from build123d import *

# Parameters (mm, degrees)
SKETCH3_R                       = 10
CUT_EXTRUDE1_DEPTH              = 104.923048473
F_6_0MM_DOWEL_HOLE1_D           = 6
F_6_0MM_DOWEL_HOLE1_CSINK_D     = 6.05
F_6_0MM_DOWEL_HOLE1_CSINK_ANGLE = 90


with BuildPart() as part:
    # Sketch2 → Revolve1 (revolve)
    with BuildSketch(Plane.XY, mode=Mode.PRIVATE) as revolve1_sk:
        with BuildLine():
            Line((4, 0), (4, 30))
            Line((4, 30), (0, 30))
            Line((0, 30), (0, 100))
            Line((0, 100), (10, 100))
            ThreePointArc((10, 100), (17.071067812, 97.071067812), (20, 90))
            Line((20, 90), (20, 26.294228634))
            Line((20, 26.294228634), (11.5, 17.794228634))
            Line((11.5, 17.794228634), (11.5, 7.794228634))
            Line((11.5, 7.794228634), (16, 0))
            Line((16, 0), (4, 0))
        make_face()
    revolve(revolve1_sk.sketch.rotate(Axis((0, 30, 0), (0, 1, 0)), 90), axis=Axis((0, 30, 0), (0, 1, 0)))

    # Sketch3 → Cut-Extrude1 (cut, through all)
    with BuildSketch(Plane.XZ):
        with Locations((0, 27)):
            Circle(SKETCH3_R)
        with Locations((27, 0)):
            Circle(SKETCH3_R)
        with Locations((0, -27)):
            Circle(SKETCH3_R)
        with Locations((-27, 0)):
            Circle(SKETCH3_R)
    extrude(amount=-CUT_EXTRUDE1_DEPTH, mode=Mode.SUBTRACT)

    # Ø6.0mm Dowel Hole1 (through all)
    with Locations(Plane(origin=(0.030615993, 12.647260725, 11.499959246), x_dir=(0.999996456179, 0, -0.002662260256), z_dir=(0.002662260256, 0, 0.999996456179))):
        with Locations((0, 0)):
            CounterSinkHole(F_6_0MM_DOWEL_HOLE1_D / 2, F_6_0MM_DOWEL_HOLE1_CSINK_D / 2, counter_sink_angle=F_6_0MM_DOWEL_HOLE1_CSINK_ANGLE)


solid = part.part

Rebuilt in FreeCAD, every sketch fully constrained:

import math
import FreeCAD as App
import Part
import Sketcher
Q = App.Units.Quantity

doc = App.newDocument("Part")
params = doc.addObject("Spreadsheet::Sheet", "Params")
for row, (alias, value) in enumerate([
    ("sketch1_radius", "10 mm"),
    ("sketch1_width", "12 mm"),
    ("sketch1_width2", "10 mm"),
    ("sketch1_width3", "4 mm"),
    ("sketch1_height", "30 mm"),
    ("revolution_angle", "360 deg"),
    ("sketch2_diameter", "20 mm"),
    ("sketch3_diameter", "6 mm"),
    ("hole_diameter", "6 mm"),
    ("hole_csink_diameter", "6.05 mm"),
], start=1):
    params.set(f"A{row}", alias)
    params.set(f"B{row}", "=" + value)
    params.setAlias(f"B{row}", alias)

body = doc.addObject("PartDesign::Body", "Body")

# Sketch on XY plane
sketch1 = body.newObject("Sketcher::SketchObject", "Sketch")
sketch1.AttachmentSupport = (doc.getObject("XY_Plane"), [""])
sketch1.MapMode = "FlatFace"
sketch1.addGeometry(Part.LineSegment(App.Vector(4, 30, 0), App.Vector(4, 0, 0)), False)
sketch1.addGeometry(Part.LineSegment(App.Vector(4, 0, 0), App.Vector(16, 0, 0)), False)
sketch1.addGeometry(Part.LineSegment(App.Vector(16, 0, 0), App.Vector(11.5, 7.8, 0)), False)
sketch1.addGeometry(Part.LineSegment(App.Vector(11.5, 7.8, 0), App.Vector(11.5, 17.8, 0)), False)
sketch1.addGeometry(Part.LineSegment(App.Vector(11.5, 17.8, 0), App.Vector(20, 26.3, 0)), False)
sketch1.addGeometry(Part.LineSegment(App.Vector(20, 26.3, 0), App.Vector(20, 90, 0)), False)
sketch1.addGeometry(Part.ArcOfCircle(Part.Circle(App.Vector(10, 90, 0), App.Vector(0, 0, 1), 10), math.radians(0), math.radians(90)), False)
sketch1.addGeometry(Part.LineSegment(App.Vector(10, 100, 0), App.Vector(0, 100, 0)), False)
sketch1.addGeometry(Part.LineSegment(App.Vector(0, 100, 0), App.Vector(0, 30, 0)), False)
sketch1.addGeometry(Part.LineSegment(App.Vector(0, 30, 0), App.Vector(4, 30, 0)), False)
sketch1.addConstraint(Sketcher.Constraint("Coincident", 0, 2, 1, 1))
sketch1.addConstraint(Sketcher.Constraint("Coincident", 1, 2, 2, 1))
sketch1.addConstraint(Sketcher.Constraint("Coincident", 2, 2, 3, 1))
sketch1.addConstraint(Sketcher.Constraint("Coincident", 3, 2, 4, 1))
sketch1.addConstraint(Sketcher.Constraint("Coincident", 4, 2, 5, 1))
sketch1.addConstraint(Sketcher.Constraint("Tangent", 5, 2, 6, 1))
sketch1.addConstraint(Sketcher.Constraint("Tangent", 6, 2, 7, 1))
sketch1.addConstraint(Sketcher.Constraint("Coincident", 7, 2, 8, 1))
sketch1.addConstraint(Sketcher.Constraint("Coincident", 8, 2, 9, 1))
sketch1.addConstraint(Sketcher.Constraint("Coincident", 9, 2, 0, 1))
sketch1.addConstraint(Sketcher.Constraint("Vertical", 0))
sketch1.addConstraint(Sketcher.Constraint("Horizontal", 1))
sketch1.addConstraint(Sketcher.Constraint("Vertical", 3))
sketch1.addConstraint(Sketcher.Constraint("Vertical", 5))
sketch1.addConstraint(Sketcher.Constraint("Horizontal", 7))
sketch1.addConstraint(Sketcher.Constraint("Vertical", 8))
sketch1.addConstraint(Sketcher.Constraint("Horizontal", 9))
sketch1.addConstraint(Sketcher.Constraint("PointOnObject", 0, 2, -1))
sketch1.addConstraint(Sketcher.Constraint("PointOnObject", 7, 2, -2))
sketch1.addConstraint(Sketcher.Constraint("Equal", 7, 3))
sketch1.addConstraint(Sketcher.Constraint("Radius", 6, Q("10 mm")))
sketch1.addConstraint(Sketcher.Constraint("DistanceX", 1, 1, 1, 2, Q("12 mm")))
sketch1.addConstraint(Sketcher.Constraint("DistanceX", 7, 2, 7, 1, Q("10 mm")))
sketch1.addConstraint(Sketcher.Constraint("DistanceX", 9, 1, 9, 2, Q("4 mm")))
sketch1.addConstraint(Sketcher.Constraint("DistanceY", 0, 2, 0, 1, Q("30 mm")))
sketch1.addConstraint(Sketcher.Constraint("DistanceY", 8, 2, 8, 1, Q("70 mm")))
sketch1.addConstraint(Sketcher.Constraint("Angle", 2, Q("120 deg")))
sketch1.addConstraint(Sketcher.Constraint("Angle", 4, Q("45 deg")))
sketch1.addConstraint(Sketcher.Constraint("Distance", 2, Q("9 mm")))
sketch1.setExpression("Constraints[20]", "Params.sketch1_radius")
sketch1.setExpression("Constraints[21]", "Params.sketch1_width")
sketch1.setExpression("Constraints[22]", "Params.sketch1_width2")
sketch1.setExpression("Constraints[23]", "Params.sketch1_width3")
sketch1.setExpression("Constraints[24]", "Params.sketch1_height")
revolution = body.newObject("PartDesign::Revolution", "Revolution")
revolution.Profile = sketch1
revolution.ReferenceAxis = (sketch1, ["V_Axis"])
revolution.setExpression("Angle", "Params.revolution_angle")

# Sketch on XZ plane
sketch2 = body.newObject("Sketcher::SketchObject", "Sketch001")
sketch2.AttachmentSupport = (doc.getObject("XZ_Plane"), [""])
sketch2.MapMode = "FlatFace"
sketch2.addGeometry(Part.Circle(App.Vector(0, 27, 0), App.Vector(0, 0, 1), 10), False)
sketch2.addGeometry(Part.Circle(App.Vector(27, 0, 0), App.Vector(0, 0, 1), 10), False)
sketch2.addGeometry(Part.Circle(App.Vector(0, -27, 0), App.Vector(0, 0, 1), 10), False)
sketch2.addGeometry(Part.Circle(App.Vector(-27, 0, 0), App.Vector(0, 0, 1), 10), False)
sketch2.addConstraint(Sketcher.Constraint("Equal", 0, 1))
sketch2.addConstraint(Sketcher.Constraint("Equal", 1, 2))
sketch2.addConstraint(Sketcher.Constraint("Equal", 2, 3))
sketch2.addConstraint(Sketcher.Constraint("Symmetric", 0, 3, 2, 3, -1, 1))
sketch2.addConstraint(Sketcher.Constraint("Symmetric", 1, 3, 3, 3, -1, 1))
sketch2.addConstraint(Sketcher.Constraint("PointOnObject", 0, 3, -2))
sketch2.addConstraint(Sketcher.Constraint("PointOnObject", 1, 3, -1))
sketch2.addConstraint(Sketcher.Constraint("Diameter", 0, Q("20 mm")))
sketch2.addConstraint(Sketcher.Constraint("DistanceY", -1, 1, 0, 3, Q("27 mm")))
sketch2.addConstraint(Sketcher.Constraint("DistanceX", -1, 1, 1, 3, Q("27 mm")))
sketch2.setExpression("Constraints[7]", "Params.sketch2_diameter")
pocket1 = body.newObject("PartDesign::Pocket", "Pocket")
pocket1.Profile = sketch2
pocket1.Type = "ThroughAll"

# Sketch on an angled plane
sketch3 = body.newObject("Sketcher::SketchObject", "Sketch002")
sketch3.Placement = App.Placement(App.Vector(0.030616, 0, 11.499959), App.Rotation(App.Vector(0.999996456, 0, -0.00266226), App.Vector(0, 1, 0), App.Vector(0.00266226, 0, 0.999996456), "ZXY"))
sketch3.addGeometry(Part.Circle(App.Vector(0, 12.6, 0), App.Vector(0, 0, 1), 3), False)
sketch3.addConstraint(Sketcher.Constraint("PointOnObject", 0, 3, -2))
sketch3.addConstraint(Sketcher.Constraint("Diameter", 0, Q("6 mm")))
sketch3.addConstraint(Sketcher.Constraint("DistanceY", -1, 1, 0, 3, Q("12.647261 mm")))
sketch3.setExpression("Constraints[1]", "Params.sketch3_diameter")
doc.recompute()
hole = body.newObject("PartDesign::Hole", "Hole")
hole.Profile = sketch3
hole.ThreadType = "None"
hole.setExpression("Diameter", "Params.hole_diameter")
hole.DepthType = "ThroughAll"
hole.HoleCutType = "Countersink"
hole.setExpression("HoleCutDiameter", "Params.hole_csink_diameter")
hole.HoleCutCountersinkAngle = 90

doc.recompute()
